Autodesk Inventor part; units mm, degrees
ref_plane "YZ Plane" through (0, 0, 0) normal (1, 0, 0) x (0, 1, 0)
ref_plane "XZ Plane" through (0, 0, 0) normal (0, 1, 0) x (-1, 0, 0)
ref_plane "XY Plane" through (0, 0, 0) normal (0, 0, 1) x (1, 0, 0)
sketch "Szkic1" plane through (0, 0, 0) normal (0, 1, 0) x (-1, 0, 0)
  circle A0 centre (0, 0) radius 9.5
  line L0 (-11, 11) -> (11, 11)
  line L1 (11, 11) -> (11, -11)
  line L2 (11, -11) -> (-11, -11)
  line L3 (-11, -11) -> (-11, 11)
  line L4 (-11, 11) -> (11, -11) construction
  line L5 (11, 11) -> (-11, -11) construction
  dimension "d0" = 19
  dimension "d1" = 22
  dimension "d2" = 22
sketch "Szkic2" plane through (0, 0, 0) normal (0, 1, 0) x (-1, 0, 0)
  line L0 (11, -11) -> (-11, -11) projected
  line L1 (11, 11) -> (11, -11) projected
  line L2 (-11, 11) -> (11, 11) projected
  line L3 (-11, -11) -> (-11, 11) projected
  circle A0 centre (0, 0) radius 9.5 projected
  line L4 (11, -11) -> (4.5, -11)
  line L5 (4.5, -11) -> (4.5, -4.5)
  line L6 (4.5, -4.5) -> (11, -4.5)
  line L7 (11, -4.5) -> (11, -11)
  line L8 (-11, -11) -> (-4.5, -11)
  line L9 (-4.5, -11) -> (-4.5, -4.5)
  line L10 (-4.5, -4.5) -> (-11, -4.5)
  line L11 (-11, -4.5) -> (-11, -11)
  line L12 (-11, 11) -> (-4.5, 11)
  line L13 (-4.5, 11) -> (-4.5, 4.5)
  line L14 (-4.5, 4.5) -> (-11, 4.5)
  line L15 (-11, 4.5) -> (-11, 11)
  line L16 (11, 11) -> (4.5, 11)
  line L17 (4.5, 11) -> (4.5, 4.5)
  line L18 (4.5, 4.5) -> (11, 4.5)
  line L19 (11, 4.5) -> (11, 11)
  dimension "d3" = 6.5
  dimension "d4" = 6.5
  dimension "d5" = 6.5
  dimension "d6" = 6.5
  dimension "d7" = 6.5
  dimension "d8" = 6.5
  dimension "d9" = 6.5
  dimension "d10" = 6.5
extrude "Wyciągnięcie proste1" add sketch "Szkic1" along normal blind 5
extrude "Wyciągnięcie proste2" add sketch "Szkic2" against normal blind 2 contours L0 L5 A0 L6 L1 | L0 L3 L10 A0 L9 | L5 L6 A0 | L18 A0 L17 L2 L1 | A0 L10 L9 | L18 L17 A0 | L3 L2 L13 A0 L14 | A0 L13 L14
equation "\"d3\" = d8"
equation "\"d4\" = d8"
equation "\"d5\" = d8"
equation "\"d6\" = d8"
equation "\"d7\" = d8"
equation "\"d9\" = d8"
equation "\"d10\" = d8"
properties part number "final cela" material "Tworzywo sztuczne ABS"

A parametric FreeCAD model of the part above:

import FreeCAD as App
import Part
import Sketcher

V = App.Vector
Q = App.Units.Quantity


def add_polygon(sketch, points):
    """Adds a closed chain of lines whose ends are joined by coincident constraints."""
    first, n = sketch.GeometryCount, len(points)
    for a, b in zip(points, points[1:] + points[:1]):
        sketch.addGeometry(Part.LineSegment(App.Vector(*a, 0), App.Vector(*b, 0)), False)
    for i in range(n):
        sketch.addConstraint(Sketcher.Constraint("Coincident", first + i, 2, first + (i + 1) % n, 1))

doc = App.newDocument("Part")
params = doc.addObject("Spreadsheet::Sheet", "Params")
for row, (alias, value) in enumerate([
    ("sketch1_diameter", "19 mm"),
    ("sketch1_width", "22 mm"),
    ("pad1_length", "5 mm"),
    ("sketch2_width", "6.5 mm"),
    ("pad2_length", "2 mm"),
], start=1):
    params.set(f"A{row}", alias)
    params.set(f"B{row}", "=" + value)
    params.setAlias(f"B{row}", alias)

body = doc.addObject("PartDesign::Body", "Body")

sketch1 = doc.addObject("Sketcher::SketchObject", "Sketch")
body.addObject(sketch1)
sketch1.AttachmentSupport = (doc.XZ_Plane, [""])
sketch1.MapMode = "FlatFace"
add_polygon(sketch1, [(-11, 11), (11, 11), (11, -11), (-11, -11)])
sketch1.addGeometry(Part.Circle(V(0, 0, 0), V(0, 0, 1), 10), False)
sketch1.addConstraint(Sketcher.Constraint("Horizontal", 0))
sketch1.addConstraint(Sketcher.Constraint("Vertical", 1))
sketch1.addConstraint(Sketcher.Constraint("Horizontal", 2))
sketch1.addConstraint(Sketcher.Constraint("Vertical", 3))
sketch1.addConstraint(Sketcher.Constraint("Coincident", 4, 3, -1, 1))
sketch1.addConstraint(Sketcher.Constraint("Symmetric", 0, 2, 2, 2, -1, 1))
sketch1.addConstraint(Sketcher.Constraint("Equal", 2, 1))
sketch1.addConstraint(Sketcher.Constraint("Diameter", 4, Q("19 mm")))
sketch1.addConstraint(Sketcher.Constraint("DistanceX", 0, 1, 0, 2, Q("22 mm")))
sketch1.setExpression("Constraints[11]", "Params.sketch1_diameter")
sketch1.setExpression("Constraints[12]", "Params.sketch1_width")
pad1 = doc.addObject("PartDesign::Pad", "Pad")
body.addObject(pad1)
pad1.Profile = sketch1
pad1.setExpression("Length", "Params.pad1_length")
pad1.Reversed = True

sketch2 = doc.addObject("Sketcher::SketchObject", "Sketch001")
body.addObject(sketch2)
sketch2.AttachmentSupport = (doc.XZ_Plane, [""])
sketch2.MapMode = "FlatFace"
add_polygon(sketch2, [(-4, -11), (-11, -11), (-11, -4), (-4, -4)])
add_polygon(sketch2, [(11, -11), (4, -11), (4, -4), (11, -4)])
add_polygon(sketch2, [(-11, 4), (-11, 11), (-4, 11), (-4, 4)])
add_polygon(sketch2, [(11, 11), (11, 4), (4, 4), (4, 11)])
sketch2.addConstraint(Sketcher.Constraint("Horizontal", 0))
sketch2.addConstraint(Sketcher.Constraint("Vertical", 1))
sketch2.addConstraint(Sketcher.Constraint("Horizontal", 2))
sketch2.addConstraint(Sketcher.Constraint("Vertical", 3))
sketch2.addConstraint(Sketcher.Constraint("Horizontal", 4))
sketch2.addConstraint(Sketcher.Constraint("Vertical", 5))
sketch2.addConstraint(Sketcher.Constraint("Horizontal", 6))
sketch2.addConstraint(Sketcher.Constraint("Vertical", 7))
sketch2.addConstraint(Sketcher.Constraint("Vertical", 8))
sketch2.addConstraint(Sketcher.Constraint("Horizontal", 9))
sketch2.addConstraint(Sketcher.Constraint("Vertical", 10))
sketch2.addConstraint(Sketcher.Constraint("Horizontal", 11))
sketch2.addConstraint(Sketcher.Constraint("Vertical", 12))
sketch2.addConstraint(Sketcher.Constraint("Horizontal", 13))
sketch2.addConstraint(Sketcher.Constraint("Vertical", 14))
sketch2.addConstraint(Sketcher.Constraint("Horizontal", 15))
sketch2.addConstraint(Sketcher.Constraint("Symmetric", 7, 2, 8, 2, -1, 1))
sketch2.addConstraint(Sketcher.Constraint("Symmetric", 5, 2, 10, 2, -1, 1))
sketch2.addConstraint(Sketcher.Constraint("Symmetric", 1, 2, 12, 2, -1, 1))
sketch2.addConstraint(Sketcher.Constraint("Symmetric", 3, 2, 14, 2, -1, 1))
sketch2.addConstraint(Sketcher.Constraint("Symmetric", 3, 2, 4, 2, -2))
sketch2.addConstraint(Sketcher.Constraint("Symmetric", 1, 2, 6, 2, -2))
sketch2.addConstraint(Sketcher.Constraint("Equal", 15, 1))
sketch2.addConstraint(Sketcher.Constraint("DistanceX", 0, 2, 0, 1, Q("6.5 mm")))
sketch2.addConstraint(Sketcher.Constraint("DistanceX", 0, 2, -1, 1, Q("11 mm")))
sketch2.addConstraint(Sketcher.Constraint("DistanceY", 0, 2, -1, 1, Q("11 mm")))
sketch2.setExpression("Constraints[39]", "Params.sketch2_width")
pad2 = doc.addObject("PartDesign::Pad", "Pad001")
body.addObject(pad2)
pad2.Profile = sketch2
pad2.setExpression("Length", "Params.pad2_length")

doc.recompute()
